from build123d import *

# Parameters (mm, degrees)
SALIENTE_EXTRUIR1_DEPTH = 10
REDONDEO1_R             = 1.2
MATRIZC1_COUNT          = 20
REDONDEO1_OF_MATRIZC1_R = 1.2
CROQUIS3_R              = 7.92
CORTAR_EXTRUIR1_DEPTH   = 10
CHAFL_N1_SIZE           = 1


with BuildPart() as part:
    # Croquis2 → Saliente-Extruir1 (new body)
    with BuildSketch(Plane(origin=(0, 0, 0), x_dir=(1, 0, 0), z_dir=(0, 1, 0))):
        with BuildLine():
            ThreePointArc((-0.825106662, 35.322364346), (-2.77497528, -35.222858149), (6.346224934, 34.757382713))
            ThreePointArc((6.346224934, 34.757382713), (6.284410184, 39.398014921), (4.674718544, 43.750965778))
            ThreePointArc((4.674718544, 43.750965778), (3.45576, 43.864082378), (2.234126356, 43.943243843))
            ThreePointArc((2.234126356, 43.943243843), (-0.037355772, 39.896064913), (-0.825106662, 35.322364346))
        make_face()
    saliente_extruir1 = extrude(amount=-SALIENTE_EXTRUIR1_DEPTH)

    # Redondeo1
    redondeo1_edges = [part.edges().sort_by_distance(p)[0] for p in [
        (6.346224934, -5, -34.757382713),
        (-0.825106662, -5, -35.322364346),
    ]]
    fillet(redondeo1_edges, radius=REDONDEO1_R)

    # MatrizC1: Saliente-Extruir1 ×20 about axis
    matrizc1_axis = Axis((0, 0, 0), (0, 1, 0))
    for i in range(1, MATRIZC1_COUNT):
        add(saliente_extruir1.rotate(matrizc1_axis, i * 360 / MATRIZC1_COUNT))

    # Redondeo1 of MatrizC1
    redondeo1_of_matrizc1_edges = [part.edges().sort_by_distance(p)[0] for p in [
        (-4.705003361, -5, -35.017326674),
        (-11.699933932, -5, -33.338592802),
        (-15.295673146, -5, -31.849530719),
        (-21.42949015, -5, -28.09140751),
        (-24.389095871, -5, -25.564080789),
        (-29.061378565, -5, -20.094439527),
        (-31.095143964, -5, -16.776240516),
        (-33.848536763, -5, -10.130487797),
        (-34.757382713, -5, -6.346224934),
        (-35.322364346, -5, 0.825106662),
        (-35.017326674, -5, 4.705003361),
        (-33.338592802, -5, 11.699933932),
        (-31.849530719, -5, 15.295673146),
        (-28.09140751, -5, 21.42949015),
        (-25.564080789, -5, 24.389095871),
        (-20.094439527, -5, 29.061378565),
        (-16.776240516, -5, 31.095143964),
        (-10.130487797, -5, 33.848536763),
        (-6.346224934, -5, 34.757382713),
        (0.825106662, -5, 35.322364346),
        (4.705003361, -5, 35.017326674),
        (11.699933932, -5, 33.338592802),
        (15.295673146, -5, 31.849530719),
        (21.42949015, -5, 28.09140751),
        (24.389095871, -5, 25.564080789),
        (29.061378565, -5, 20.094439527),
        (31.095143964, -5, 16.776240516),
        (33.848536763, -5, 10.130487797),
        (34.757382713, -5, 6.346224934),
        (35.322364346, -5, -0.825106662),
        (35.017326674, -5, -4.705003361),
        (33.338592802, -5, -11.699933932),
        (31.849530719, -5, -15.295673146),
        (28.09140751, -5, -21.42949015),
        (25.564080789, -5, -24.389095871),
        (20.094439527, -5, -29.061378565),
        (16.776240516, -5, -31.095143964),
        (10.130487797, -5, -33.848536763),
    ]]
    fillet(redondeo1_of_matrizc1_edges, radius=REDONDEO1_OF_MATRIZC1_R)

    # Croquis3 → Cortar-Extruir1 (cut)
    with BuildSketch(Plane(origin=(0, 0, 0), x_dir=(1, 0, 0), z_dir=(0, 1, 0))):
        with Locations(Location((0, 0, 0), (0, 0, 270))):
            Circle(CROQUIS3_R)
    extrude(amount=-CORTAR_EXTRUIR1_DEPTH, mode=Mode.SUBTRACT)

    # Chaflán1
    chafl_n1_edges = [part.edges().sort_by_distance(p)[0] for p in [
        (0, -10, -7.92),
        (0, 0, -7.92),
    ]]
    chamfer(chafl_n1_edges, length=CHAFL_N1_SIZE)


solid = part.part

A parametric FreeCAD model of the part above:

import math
import FreeCAD as App
import Part
import Sketcher
from FreeCAD import Vector
Q = App.Units.Quantity


def edges_at(feature, points):
    """Names of the edges that pass closest to the given points."""
    edges = feature.Shape.Edges
    near = lambda p: min(range(len(edges)), key=lambda i: edges[i].distToShape(Part.Vertex(*p))[0])
    return sorted({f"Edge{near(p) + 1}" for p in points})

doc = App.newDocument("Part")
body = doc.addObject("PartDesign::Body", "Body")

sketch1 = body.newObject("Sketcher::SketchObject", "Sketch")
sketch1.AttachmentSupport = (doc.getObject("XZ_Plane"), [""])
sketch1.MapMode = "FlatFace"
sketch1.addGeometry([
    Part.ArcOfCircle(Part.Circle(Vector(0, 0, 0), Vector(0, 0, 1), 35.3), math.radians(-80), math.radians(269)),
    Part.ArcOfCircle(Part.Circle(Vector(-7.2, -36.9, 0), Vector(0, 0, 1), 13.7), math.radians(-30), math.radians(9)),
    Part.ArcOfCircle(Part.Circle(Vector(0, 0, 0), Vector(0, 0, 1), 44), math.radians(-87.09), math.radians(-83.9)),
    Part.ArcOfCircle(Part.Circle(Vector(12.9, -35.3, 0), Vector(0, 0, 1), 13.7), math.radians(-180), math.radians(-141)),
], False)
sketch1.addConstraint([
    Sketcher.Constraint("Coincident", 0, 1, 1, 2),
    Sketcher.Constraint("Coincident", 1, 1, 2, 2),
    Sketcher.Constraint("Coincident", 2, 1, 3, 2),
    Sketcher.Constraint("Coincident", 3, 1, 0, 2),
    Sketcher.Constraint("Coincident", 0, 3, -1, 1),
    Sketcher.Constraint("Coincident", 2, 3, -1, 1),
    Sketcher.Constraint("Equal", 1, 3),
    Sketcher.Constraint("Radius", 2, Q("43.999999 mm")),
    Sketcher.Constraint("Radius", 0, Q("35.332 mm")),
    Sketcher.Constraint("Radius", 1, Q("13.681094 mm")),
    Sketcher.Constraint("DistanceX", 2, 1, 0, 1, Q("4.112099 mm")),
    Sketcher.Constraint("DistanceY", 1, 1, 3, 1, Q("8.428601 mm")),
    Sketcher.Constraint("DistanceY", 1, 3, -1, 1, Q("36.898119 mm")),
    Sketcher.Constraint("DistanceY", 3, 3, -1, 1, Q("35.320692 mm")),
])
pad1 = body.newObject("PartDesign::Pad", "Pad")
pad1.Profile = sketch1
pad1.Length = 10
doc.recompute()

fillet = body.newObject("PartDesign::Fillet", "Fillet")
fillet.Base = (pad1, edges_at(pad1, [(6.346, -5, -34.757), (-0.825, -5, -35.322)]))
fillet.Radius = 1.2
doc.recompute()

polarpattern = body.newObject("PartDesign::PolarPattern", "PolarPattern")
polarpattern.Originals = [pad1]
polarpattern.Axis = (doc.getObject("Y_Axis"), [""])
polarpattern.Angle = 360
polarpattern.Occurrences = 20
body.Tip = polarpattern
doc.recompute()

fillet2 = body.newObject("PartDesign::Fillet", "Fillet001")
fillet2.Base = (polarpattern, edges_at(polarpattern, [
    (-4.705, -5, -35.017),
    (-11.7, -5, -33.339),
    (-15.296, -5, -31.85),
    (-21.429, -5, -28.091),
    (-24.389, -5, -25.564),
    (-29.061, -5, -20.094),
    (-31.095, -5, -16.776),
    (-33.849, -5, -10.13),
    (-34.757, -5, -6.346),
    (-35.322, -5, 0.825),
    (-35.017, -5, 4.705),
    (-33.339, -5, 11.7),
    (-31.85, -5, 15.296),
    (-28.091, -5, 21.429),
    (-25.564, -5, 24.389),
    (-20.094, -5, 29.061),
    (-16.776, -5, 31.095),
    (-10.13, -5, 33.849),
    (-6.346, -5, 34.757),
    (0.825, -5, 35.322),
    (4.705, -5, 35.017),
    (11.7, -5, 33.339),
    (15.296, -5, 31.85),
    (21.429, -5, 28.091),
    (24.389, -5, 25.564),
    (29.061, -5, 20.094),
    (31.095, -5, 16.776),
    (33.849, -5, 10.13),
    (34.757, -5, 6.346),
    (35.322, -5, -0.825),
    (35.017, -5, -4.705),
    (33.339, -5, -11.7),
    (31.85, -5, -15.296),
    (28.091, -5, -21.429),
    (25.564, -5, -24.389),
    (20.094, -5, -29.061),
    (16.776, -5, -31.095),
    (10.13, -5, -33.849),
]))
fillet2.Radius = 1.2

sketch2 = body.newObject("Sketcher::SketchObject", "Sketch001")
sketch2.AttachmentSupport = (doc.getObject("XZ_Plane"), [""])
sketch2.MapMode = "FlatFace"
sketch2.addGeometry(Part.Circle(Vector(0, 0, 0), Vector(0, 0, 1), 8), False)
sketch2.addConstraint([
    Sketcher.Constraint("Coincident", 0, 3, -1, 1),
    Sketcher.Constraint("Diameter", 0, Q("15.84 mm")),
])
pocket1 = body.newObject("PartDesign::Pocket", "Pocket")
pocket1.Profile = sketch2
pocket1.Length = 10
pocket1.Reversed = True
doc.recompute()

chamfer = body.newObject("PartDesign::Chamfer", "Chamfer")
chamfer.Base = (pocket1, edges_at(pocket1, [(0, -10, -7.92), (0, 0, -7.92)]))
chamfer.Size = 1

doc.recompute()
